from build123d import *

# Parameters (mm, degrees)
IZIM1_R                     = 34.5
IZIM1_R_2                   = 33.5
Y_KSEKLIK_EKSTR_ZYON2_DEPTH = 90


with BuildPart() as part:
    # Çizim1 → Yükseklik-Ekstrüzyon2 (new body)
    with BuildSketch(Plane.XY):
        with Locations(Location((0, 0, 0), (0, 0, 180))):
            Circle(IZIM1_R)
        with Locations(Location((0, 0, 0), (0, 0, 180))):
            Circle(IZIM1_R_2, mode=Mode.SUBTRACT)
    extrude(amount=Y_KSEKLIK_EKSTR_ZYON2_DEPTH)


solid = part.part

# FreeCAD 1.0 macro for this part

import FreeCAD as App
import Part
import Sketcher
from FreeCAD import Vector

doc = App.newDocument("Part")
body = doc.addObject("PartDesign::Body", "Body")

sketch1 = doc.addObject("Sketcher::SketchObject", "Sketch")
body.addObject(sketch1)
sketch1.AttachmentSupport = (doc.XY_Plane, [""])
sketch1.MapMode = "FlatFace"
sketch1.addGeometry([
    Part.Circle(Vector(0, 0, 0), Vector(0, 0, 1), 34),
    Part.Circle(Vector(0, 0, 0), Vector(0, 0, 1), 34),
], False)
sketch1.addConstraint([
    Sketcher.Constraint("Coincident", 0, 3, -1, 1),
    Sketcher.Constraint("Coincident", 1, 3, -1, 1),
    Sketcher.Constraint("Diameter", 0, 69.0),
    Sketcher.Constraint("Diameter", 1, 67.0),
])
pad1 = doc.addObject("PartDesign::Pad", "Pad")
body.addObject(pad1)
pad1.Profile = sketch1
pad1.Length = 90

doc.recompute()
